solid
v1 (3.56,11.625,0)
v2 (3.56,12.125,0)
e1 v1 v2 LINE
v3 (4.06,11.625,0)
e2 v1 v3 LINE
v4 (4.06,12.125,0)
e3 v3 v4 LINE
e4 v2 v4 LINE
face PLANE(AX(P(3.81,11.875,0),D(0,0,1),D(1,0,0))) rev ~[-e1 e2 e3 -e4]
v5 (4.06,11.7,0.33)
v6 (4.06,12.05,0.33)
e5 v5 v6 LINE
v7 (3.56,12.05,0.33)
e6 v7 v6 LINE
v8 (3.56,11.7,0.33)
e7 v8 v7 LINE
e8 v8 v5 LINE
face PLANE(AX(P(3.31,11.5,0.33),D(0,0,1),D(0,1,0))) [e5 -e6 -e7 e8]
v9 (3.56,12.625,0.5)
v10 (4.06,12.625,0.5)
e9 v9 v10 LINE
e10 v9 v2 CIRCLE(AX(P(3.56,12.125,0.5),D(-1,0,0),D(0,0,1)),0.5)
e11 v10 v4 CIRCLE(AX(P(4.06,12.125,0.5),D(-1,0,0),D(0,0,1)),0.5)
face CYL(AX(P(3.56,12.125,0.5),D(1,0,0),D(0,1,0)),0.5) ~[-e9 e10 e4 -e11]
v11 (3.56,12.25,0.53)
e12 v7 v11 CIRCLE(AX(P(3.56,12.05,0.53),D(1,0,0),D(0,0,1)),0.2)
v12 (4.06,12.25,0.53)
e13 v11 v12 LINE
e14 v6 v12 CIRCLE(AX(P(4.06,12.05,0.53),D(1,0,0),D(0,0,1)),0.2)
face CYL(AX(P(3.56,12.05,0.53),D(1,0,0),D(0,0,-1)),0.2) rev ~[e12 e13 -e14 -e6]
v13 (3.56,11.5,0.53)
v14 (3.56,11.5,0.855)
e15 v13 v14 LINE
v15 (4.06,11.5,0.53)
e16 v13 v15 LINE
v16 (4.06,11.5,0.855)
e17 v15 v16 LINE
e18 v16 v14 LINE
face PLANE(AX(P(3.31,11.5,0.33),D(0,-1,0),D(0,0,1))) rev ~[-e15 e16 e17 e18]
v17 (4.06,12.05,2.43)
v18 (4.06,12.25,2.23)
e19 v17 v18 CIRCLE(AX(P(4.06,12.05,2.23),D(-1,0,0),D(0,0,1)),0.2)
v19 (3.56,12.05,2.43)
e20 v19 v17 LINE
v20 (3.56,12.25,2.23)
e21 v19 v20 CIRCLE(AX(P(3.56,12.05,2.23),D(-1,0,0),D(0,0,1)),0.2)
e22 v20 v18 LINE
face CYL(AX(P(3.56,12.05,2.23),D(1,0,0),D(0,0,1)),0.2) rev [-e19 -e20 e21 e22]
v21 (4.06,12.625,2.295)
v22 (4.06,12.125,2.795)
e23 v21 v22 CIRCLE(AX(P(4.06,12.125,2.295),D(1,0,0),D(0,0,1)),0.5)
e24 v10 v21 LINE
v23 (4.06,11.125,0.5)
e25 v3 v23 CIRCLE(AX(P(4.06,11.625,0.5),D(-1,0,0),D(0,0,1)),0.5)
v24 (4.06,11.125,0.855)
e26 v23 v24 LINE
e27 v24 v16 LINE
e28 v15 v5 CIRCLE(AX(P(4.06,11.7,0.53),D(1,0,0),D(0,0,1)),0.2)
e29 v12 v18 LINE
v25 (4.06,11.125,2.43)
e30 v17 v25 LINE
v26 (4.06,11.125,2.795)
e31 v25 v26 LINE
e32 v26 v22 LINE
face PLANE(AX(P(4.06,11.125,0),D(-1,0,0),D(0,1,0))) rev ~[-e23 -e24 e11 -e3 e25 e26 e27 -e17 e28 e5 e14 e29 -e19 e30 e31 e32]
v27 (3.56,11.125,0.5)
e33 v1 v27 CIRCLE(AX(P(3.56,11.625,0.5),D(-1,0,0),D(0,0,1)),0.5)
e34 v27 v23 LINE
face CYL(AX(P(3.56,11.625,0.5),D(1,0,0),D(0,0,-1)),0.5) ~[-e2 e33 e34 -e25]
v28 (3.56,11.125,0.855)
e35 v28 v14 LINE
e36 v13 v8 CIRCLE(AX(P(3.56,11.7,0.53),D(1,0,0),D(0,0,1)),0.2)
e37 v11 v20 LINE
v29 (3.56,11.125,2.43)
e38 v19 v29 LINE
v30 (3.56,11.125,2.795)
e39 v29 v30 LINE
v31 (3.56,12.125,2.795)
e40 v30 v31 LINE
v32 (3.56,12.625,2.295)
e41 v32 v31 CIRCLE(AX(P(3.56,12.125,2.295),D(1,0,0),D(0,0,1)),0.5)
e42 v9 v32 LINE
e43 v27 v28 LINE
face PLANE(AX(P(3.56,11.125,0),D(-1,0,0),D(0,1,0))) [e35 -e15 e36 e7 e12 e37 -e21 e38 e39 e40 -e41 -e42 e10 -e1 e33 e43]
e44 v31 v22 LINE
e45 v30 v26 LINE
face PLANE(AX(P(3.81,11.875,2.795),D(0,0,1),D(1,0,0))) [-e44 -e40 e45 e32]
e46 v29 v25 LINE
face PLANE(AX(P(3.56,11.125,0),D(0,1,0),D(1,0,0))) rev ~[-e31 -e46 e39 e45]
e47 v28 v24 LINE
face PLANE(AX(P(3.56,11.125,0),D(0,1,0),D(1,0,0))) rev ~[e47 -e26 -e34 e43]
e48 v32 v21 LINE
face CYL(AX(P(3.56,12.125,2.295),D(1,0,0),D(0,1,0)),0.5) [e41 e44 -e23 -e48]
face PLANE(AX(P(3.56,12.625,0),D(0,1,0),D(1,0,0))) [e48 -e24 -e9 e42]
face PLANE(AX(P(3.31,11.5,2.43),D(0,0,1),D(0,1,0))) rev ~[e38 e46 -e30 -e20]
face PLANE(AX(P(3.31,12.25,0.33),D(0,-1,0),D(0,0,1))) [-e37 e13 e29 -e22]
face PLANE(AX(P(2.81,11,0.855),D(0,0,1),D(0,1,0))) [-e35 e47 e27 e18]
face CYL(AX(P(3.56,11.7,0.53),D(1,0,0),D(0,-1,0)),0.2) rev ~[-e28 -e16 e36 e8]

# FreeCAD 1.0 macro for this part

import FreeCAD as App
import Part
import Sketcher

V = App.Vector


def edges_at(feature, points):
    """Names of the edges that pass closest to the given points."""
    edges = feature.Shape.Edges
    near = lambda p: min(range(len(edges)), key=lambda i: edges[i].distToShape(Part.Vertex(*p))[0])
    return sorted({f"Edge{near(p) + 1}" for p in points})

doc = App.newDocument("Part")
body = doc.addObject("PartDesign::Body", "Body")

# Sketch on XY plane
sketch1 = body.newObject("Sketcher::SketchObject", "Sketch")
sketch1.AttachmentSupport = (doc.getObject("XY_Plane"), [""])
sketch1.MapMode = "FlatFace"
sketch1.addGeometry([
    Part.LineSegment(V(-0.2, 12.6, 0), V(-0.2, 11.1, 0)),
    Part.LineSegment(V(-0.2, 11.1, 0), V(0.2, 11.1, 0)),
    Part.LineSegment(V(0.2, 11.1, 0), V(0.2, 12.6, 0)),
    Part.LineSegment(V(0.2, 12.6, 0), V(-0.2, 12.6, 0)),
], False)
sketch1.addConstraint([
    Sketcher.Constraint("Coincident", 0, 2, 1, 1),
    Sketcher.Constraint("Coincident", 1, 2, 2, 1),
    Sketcher.Constraint("Coincident", 2, 2, 3, 1),
    Sketcher.Constraint("Coincident", 3, 2, 0, 1),
    Sketcher.Constraint("Vertical", 0),
    Sketcher.Constraint("Horizontal", 1),
    Sketcher.Constraint("Vertical", 2),
    Sketcher.Constraint("Horizontal", 3),
    Sketcher.Constraint("DistanceX", 1, 1, 1, 2, 0.5),
    Sketcher.Constraint("DistanceY", 0, 2, 0, 1, 1.5),
    Sketcher.Constraint("DistanceX", 0, 2, -1, 1, 0.25),
    Sketcher.Constraint("DistanceY", -1, 1, 0, 2, 11.125),
])
pad1 = body.newObject("PartDesign::Pad", "Pad")
pad1.Profile = sketch1
pad1.Length = 2.795
doc.recompute()

fillet = body.newObject("PartDesign::Fillet", "Fillet")
fillet.Base = (pad1, edges_at(pad1, [(0, 12.625, 0)]))
fillet.Radius = 0.5
doc.recompute()

fillet2 = body.newObject("PartDesign::Fillet", "Fillet001")
fillet2.Base = (fillet, edges_at(fillet, [(0, 12.625, 2.795)]))
fillet2.Radius = 0.5
doc.recompute()

fillet3 = body.newObject("PartDesign::Fillet", "Fillet002")
fillet3.Base = (fillet2, edges_at(fillet2, [(0, 11.125, 0)]))
fillet3.Radius = 0.5

# Sketch on YZ plane
sketch2 = body.newObject("Sketcher::SketchObject", "Sketch001")
sketch2.AttachmentSupport = (doc.getObject("YZ_Plane"), [""])
sketch2.MapMode = "FlatFace"
sketch2.AttachmentOffset = App.Placement(V(0, 0, -0.5), App.Rotation())
sketch2.addGeometry([
    Part.LineSegment(V(11.5, 2.4, 0), V(11.5, 0.3, 0)),
    Part.LineSegment(V(11.5, 0.3, 0), V(12.2, 0.3, 0)),
    Part.LineSegment(V(12.2, 0.3, 0), V(12.2, 2.4, 0)),
    Part.LineSegment(V(12.2, 2.4, 0), V(11.5, 2.4, 0)),
], False)
sketch2.addConstraint([
    Sketcher.Constraint("Coincident", 0, 2, 1, 1),
    Sketcher.Constraint("Coincident", 1, 2, 2, 1),
    Sketcher.Constraint("Coincident", 2, 2, 3, 1),
    Sketcher.Constraint("Coincident", 3, 2, 0, 1),
    Sketcher.Constraint("Vertical", 0),
    Sketcher.Constraint("Horizontal", 1),
    Sketcher.Constraint("Vertical", 2),
    Sketcher.Constraint("Horizontal", 3),
    Sketcher.Constraint("DistanceY", 0, 2, 0, 1, 2.1),
    Sketcher.Constraint("DistanceX", 1, 1, 1, 2, 0.75),
    Sketcher.Constraint("DistanceX", -1, 1, 0, 2, 11.5),
    Sketcher.Constraint("DistanceY", -1, 1, 0, 2, 0.33),
])
pocket1 = body.newObject("PartDesign::Pocket", "Pocket")
pocket1.Profile = sketch2
pocket1.Length = 1
pocket1.Reversed = True
doc.recompute()

fillet4 = body.newObject("PartDesign::Fillet", "Fillet003")
fillet4.Base = (pocket1, edges_at(pocket1, [(0, 11.5, 0.33)]))
fillet4.Radius = 0.2
doc.recompute()

fillet5 = body.newObject("PartDesign::Fillet", "Fillet004")
fillet5.Base = (fillet4, edges_at(fillet4, [(0, 12.25, 0.33)]))
fillet5.Radius = 0.2
doc.recompute()

fillet6 = body.newObject("PartDesign::Fillet", "Fillet005")
fillet6.Base = (fillet5, edges_at(fillet5, [(0, 11.5, 2.43)]))
fillet6.Radius = 0.2
doc.recompute()

fillet7 = body.newObject("PartDesign::Fillet", "Fillet006")
fillet7.Base = (fillet6, edges_at(fillet6, [(0, 12.25, 2.43)]))
fillet7.Radius = 0.2

# Sketch on YZ plane
sketch3 = body.newObject("Sketcher::SketchObject", "Sketch002")
sketch3.AttachmentSupport = (doc.getObject("YZ_Plane"), [""])
sketch3.MapMode = "FlatFace"
sketch3.AttachmentOffset = App.Placement(V(0, 0, -1), App.Rotation())
sketch3.addGeometry([
    Part.LineSegment(V(11, 2.4, 0), V(11, 0.9, 0)),
    Part.LineSegment(V(11, 0.9, 0), V(12, 0.9, 0)),
    Part.LineSegment(V(12, 0.9, 0), V(12, 2.4, 0)),
    Part.LineSegment(V(12, 2.4, 0), V(11, 2.4, 0)),
], False)
sketch3.addConstraint([
    Sketcher.Constraint("Coincident", 0, 2, 1, 1),
    Sketcher.Constraint("Coincident", 1, 2, 2, 1),
    Sketcher.Constraint("Coincident", 2, 2, 3, 1),
    Sketcher.Constraint("Coincident", 3, 2, 0, 1),
    Sketcher.Constraint("Vertical", 0),
    Sketcher.Constraint("Horizontal", 1),
    Sketcher.Constraint("Vertical", 2),
    Sketcher.Constraint("Horizontal", 3),
    Sketcher.Constraint("DistanceX", 1, 1, 1, 2, 1.0),
    Sketcher.Constraint("DistanceX", -1, 1, 0, 2, 11.0),
    Sketcher.Constraint("DistanceY", 0, 2, 0, 1, 1.575),
    Sketcher.Constraint("DistanceY", -1, 1, 2, 2, 2.43),
])
pocket2 = body.newObject("PartDesign::Pocket", "Pocket001")
pocket2.Profile = sketch3
pocket2.Length = 3
pocket2.Reversed = True
body2 = doc.addObject("PartDesign::Body", "Body001")
doc.recompute()

body.Placement = App.Placement(V(3.81, 0, 0), App.Rotation(V(0, 0, 1), 0))
boolean = body2.newObject("PartDesign::Boolean", "Boolean")
boolean.Type = "Fuse"
boolean.addObjects([body])

doc.recompute()
